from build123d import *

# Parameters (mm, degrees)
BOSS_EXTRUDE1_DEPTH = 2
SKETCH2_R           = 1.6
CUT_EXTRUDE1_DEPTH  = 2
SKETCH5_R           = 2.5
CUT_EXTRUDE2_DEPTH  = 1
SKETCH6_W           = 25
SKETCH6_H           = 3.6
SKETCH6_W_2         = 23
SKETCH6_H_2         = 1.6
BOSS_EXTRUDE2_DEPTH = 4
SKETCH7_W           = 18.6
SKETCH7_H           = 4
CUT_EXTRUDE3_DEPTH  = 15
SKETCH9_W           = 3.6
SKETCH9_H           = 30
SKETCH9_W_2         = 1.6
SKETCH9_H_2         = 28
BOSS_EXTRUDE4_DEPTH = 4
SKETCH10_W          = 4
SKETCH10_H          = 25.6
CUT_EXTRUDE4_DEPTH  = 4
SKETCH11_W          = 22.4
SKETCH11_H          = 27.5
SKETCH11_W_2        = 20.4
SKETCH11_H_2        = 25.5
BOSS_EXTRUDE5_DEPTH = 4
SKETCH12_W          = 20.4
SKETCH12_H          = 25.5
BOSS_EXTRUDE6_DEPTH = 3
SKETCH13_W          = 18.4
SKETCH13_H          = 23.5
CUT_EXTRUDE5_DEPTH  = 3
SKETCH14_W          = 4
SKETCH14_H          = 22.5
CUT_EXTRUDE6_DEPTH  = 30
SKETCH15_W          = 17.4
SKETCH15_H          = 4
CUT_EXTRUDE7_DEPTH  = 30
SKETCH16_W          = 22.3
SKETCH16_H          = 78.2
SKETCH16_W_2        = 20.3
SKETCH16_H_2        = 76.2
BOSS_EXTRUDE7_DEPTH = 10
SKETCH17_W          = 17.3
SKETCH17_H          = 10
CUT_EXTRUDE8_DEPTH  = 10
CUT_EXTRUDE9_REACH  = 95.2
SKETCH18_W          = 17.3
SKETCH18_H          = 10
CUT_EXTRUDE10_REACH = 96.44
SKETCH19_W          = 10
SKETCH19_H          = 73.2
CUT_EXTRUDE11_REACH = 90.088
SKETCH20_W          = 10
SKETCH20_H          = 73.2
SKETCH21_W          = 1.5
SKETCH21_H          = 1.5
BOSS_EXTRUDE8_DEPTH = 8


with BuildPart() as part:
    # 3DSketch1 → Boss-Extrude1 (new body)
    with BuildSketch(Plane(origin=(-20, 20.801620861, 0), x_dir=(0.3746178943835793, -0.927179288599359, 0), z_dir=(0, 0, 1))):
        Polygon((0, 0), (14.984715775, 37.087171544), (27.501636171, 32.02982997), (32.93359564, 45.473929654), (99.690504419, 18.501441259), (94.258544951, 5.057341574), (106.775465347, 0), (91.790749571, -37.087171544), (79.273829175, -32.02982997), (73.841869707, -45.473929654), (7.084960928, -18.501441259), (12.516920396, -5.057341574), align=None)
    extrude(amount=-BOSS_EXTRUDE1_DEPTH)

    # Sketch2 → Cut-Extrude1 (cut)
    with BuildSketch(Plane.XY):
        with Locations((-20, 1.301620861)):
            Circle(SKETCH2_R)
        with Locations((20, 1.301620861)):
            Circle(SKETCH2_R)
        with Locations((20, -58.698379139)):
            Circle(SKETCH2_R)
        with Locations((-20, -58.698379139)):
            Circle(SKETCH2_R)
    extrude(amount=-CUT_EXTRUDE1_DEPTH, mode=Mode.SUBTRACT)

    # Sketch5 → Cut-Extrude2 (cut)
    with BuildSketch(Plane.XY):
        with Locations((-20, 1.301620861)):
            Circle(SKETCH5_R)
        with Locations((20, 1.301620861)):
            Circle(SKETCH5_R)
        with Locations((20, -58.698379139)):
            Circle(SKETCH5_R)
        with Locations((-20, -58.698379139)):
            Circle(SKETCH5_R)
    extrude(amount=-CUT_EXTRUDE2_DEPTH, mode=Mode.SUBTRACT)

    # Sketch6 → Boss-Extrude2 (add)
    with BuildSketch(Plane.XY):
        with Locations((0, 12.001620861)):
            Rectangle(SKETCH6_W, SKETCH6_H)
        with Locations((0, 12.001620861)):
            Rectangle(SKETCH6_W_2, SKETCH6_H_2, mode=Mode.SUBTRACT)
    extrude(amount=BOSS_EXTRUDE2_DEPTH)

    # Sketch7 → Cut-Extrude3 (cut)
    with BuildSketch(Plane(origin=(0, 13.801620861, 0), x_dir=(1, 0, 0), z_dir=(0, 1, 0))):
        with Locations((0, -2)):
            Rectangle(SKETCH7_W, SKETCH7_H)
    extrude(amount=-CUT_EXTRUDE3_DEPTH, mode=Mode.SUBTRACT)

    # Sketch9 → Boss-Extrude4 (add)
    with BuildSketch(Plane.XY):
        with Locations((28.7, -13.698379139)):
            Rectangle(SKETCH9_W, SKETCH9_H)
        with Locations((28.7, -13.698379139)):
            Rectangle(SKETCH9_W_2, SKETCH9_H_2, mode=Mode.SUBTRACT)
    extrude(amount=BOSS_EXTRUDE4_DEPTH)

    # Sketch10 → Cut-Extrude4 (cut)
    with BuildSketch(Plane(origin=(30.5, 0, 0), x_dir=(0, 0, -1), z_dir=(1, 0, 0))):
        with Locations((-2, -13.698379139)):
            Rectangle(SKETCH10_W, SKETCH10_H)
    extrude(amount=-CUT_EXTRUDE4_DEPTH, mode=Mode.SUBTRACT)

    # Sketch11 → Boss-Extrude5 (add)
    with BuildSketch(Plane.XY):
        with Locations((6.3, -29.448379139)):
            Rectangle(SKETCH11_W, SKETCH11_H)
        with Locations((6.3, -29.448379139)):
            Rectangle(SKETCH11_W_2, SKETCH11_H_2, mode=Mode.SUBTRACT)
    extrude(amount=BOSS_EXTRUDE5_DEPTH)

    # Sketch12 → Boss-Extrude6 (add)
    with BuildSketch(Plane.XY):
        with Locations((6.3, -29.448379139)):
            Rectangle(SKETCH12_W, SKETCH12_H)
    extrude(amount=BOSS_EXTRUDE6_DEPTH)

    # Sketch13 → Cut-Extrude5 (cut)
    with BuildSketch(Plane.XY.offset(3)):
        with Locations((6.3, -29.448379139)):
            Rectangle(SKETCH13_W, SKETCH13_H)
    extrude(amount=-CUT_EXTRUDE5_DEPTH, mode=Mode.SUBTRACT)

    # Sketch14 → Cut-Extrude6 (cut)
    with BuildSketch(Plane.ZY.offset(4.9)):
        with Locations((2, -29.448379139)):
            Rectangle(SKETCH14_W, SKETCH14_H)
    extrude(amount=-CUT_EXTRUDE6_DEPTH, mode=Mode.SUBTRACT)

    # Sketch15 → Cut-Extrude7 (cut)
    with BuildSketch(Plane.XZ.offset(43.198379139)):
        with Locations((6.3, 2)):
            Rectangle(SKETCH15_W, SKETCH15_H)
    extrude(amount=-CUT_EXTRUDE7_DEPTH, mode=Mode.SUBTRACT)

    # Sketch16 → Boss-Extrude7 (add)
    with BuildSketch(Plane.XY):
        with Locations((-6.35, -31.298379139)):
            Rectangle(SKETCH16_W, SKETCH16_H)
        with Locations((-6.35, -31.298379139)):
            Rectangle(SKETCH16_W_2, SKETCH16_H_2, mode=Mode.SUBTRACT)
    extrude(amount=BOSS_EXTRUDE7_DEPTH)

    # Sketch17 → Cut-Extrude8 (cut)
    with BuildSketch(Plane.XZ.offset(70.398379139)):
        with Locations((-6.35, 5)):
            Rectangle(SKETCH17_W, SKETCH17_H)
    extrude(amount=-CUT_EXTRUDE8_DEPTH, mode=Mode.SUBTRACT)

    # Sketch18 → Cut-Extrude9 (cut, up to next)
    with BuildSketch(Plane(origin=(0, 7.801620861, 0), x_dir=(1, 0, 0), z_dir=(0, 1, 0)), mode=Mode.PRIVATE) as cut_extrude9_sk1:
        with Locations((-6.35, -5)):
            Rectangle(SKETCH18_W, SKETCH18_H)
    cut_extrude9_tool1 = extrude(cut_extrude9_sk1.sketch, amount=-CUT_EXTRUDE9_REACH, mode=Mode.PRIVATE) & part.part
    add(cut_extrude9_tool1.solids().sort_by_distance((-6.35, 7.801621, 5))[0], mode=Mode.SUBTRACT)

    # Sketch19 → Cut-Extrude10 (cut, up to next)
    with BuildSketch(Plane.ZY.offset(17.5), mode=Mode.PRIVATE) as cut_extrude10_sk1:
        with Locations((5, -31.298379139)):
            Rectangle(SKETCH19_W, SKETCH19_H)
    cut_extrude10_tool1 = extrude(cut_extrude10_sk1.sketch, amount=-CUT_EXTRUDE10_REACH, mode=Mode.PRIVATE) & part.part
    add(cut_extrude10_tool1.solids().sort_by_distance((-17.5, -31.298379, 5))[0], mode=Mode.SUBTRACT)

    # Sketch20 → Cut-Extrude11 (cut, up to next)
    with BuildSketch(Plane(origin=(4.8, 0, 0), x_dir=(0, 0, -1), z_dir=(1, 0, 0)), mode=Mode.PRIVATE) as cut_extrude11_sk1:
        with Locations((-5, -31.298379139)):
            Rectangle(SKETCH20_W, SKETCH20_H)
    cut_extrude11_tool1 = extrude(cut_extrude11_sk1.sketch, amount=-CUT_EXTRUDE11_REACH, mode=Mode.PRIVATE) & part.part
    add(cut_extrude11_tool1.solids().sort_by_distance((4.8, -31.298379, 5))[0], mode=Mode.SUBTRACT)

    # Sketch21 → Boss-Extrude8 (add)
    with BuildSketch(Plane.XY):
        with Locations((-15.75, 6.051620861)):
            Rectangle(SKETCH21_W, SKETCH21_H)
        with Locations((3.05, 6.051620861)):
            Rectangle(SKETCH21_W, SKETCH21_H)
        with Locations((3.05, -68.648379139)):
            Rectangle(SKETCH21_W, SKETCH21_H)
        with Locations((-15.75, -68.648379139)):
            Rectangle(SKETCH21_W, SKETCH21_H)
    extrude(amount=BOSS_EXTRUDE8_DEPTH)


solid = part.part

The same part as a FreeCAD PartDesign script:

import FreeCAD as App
import Part
import Sketcher
Q = App.Units.Quantity

doc = App.newDocument("Part")
body = doc.addObject("PartDesign::Body", "Body")

# Sketch on XY plane
sketch1 = body.newObject("Sketcher::SketchObject", "Sketch")
sketch1.AttachmentSupport = (doc.getObject("XY_Plane"), [""])
sketch1.MapMode = "FlatFace"
sketch1.addGeometry([
    Part.LineSegment(App.Vector(20, 21, 0), App.Vector(-20, 21, 0)),  # 0
    Part.LineSegment(App.Vector(-20, 21, 0), App.Vector(-20, 7, 0)),  # 1
    Part.LineSegment(App.Vector(-20, 7, 0), App.Vector(-35, 7, 0)),  # 2
    Part.LineSegment(App.Vector(-35, 7, 0), App.Vector(-35, -65, 0)),  # 3
    Part.LineSegment(App.Vector(-35, -65, 0), App.Vector(-20, -65, 0)),  # 4
    Part.LineSegment(App.Vector(-20, -65, 0), App.Vector(-20, -78, 0)),  # 5
    Part.LineSegment(App.Vector(-20, -78, 0), App.Vector(20, -78, 0)),  # 6
    Part.LineSegment(App.Vector(20, -78, 0), App.Vector(20, -65, 0)),  # 7
    Part.LineSegment(App.Vector(20, -65, 0), App.Vector(34, -65, 0)),  # 8
    Part.LineSegment(App.Vector(34, -65, 0), App.Vector(35, 7, 0)),  # 9
    Part.LineSegment(App.Vector(35, 7, 0), App.Vector(20, 7, 0)),  # 10
    Part.LineSegment(App.Vector(20, 7, 0), App.Vector(20, 21, 0)),  # 11
], False)
sketch1.addConstraint([
    Sketcher.Constraint("Coincident", 0, 2, 1, 1),
    Sketcher.Constraint("Coincident", 1, 2, 2, 1),
    Sketcher.Constraint("Coincident", 2, 2, 3, 1),
    Sketcher.Constraint("Coincident", 3, 2, 4, 1),
    Sketcher.Constraint("Coincident", 4, 2, 5, 1),
    Sketcher.Constraint("Coincident", 5, 2, 6, 1),
    Sketcher.Constraint("Coincident", 6, 2, 7, 1),
    Sketcher.Constraint("Coincident", 7, 2, 8, 1),
    Sketcher.Constraint("Coincident", 8, 2, 9, 1),
    Sketcher.Constraint("Coincident", 9, 2, 10, 1),
    Sketcher.Constraint("Coincident", 10, 2, 11, 1),
    Sketcher.Constraint("Coincident", 11, 2, 0, 1),
    Sketcher.Constraint("Horizontal", 0),
    Sketcher.Constraint("Vertical", 1),
    Sketcher.Constraint("Horizontal", 2),
    Sketcher.Constraint("Vertical", 3),
    Sketcher.Constraint("Horizontal", 4),
    Sketcher.Constraint("Vertical", 5),
    Sketcher.Constraint("Horizontal", 6),
    Sketcher.Constraint("Vertical", 7),
    Sketcher.Constraint("Horizontal", 8),
    Sketcher.Constraint("Vertical", 9),
    Sketcher.Constraint("Horizontal", 10),
    Sketcher.Constraint("Vertical", 11),
    Sketcher.Constraint("Symmetric", 4, 2, 7, 2, -2),
    Sketcher.Constraint("Symmetric", 2, 2, 9, 2, -2),
    Sketcher.Constraint("Vertical", 1, 2, 4, 2),
    Sketcher.Constraint("Vertical", 7, 2, 10, 2),
    Sketcher.Constraint("Equal", 1, 5),
    Sketcher.Constraint("DistanceX", 0, 2, 0, 1, Q("40 mm")),
    Sketcher.Constraint("DistanceY", 3, 2, 3, 1, Q("72 mm")),
    Sketcher.Constraint("DistanceX", 2, 2, 2, 1, Q("14.5 mm")),
    Sketcher.Constraint("DistanceY", 1, 2, 1, 1, Q("13.5 mm")),
    Sketcher.Constraint("DistanceY", -1, 1, 0, 2, Q("20.801621 mm")),
])
pad1 = body.newObject("PartDesign::Pad", "Pad")
pad1.Profile = sketch1
pad1.Length = 2
pad1.Reversed = True

# Sketch on XY plane
sketch2 = body.newObject("Sketcher::SketchObject", "Sketch001")
sketch2.AttachmentSupport = (doc.getObject("XY_Plane"), [""])
sketch2.MapMode = "FlatFace"
sketch2.addGeometry([
    Part.Circle(App.Vector(-20, 1.3, 0), App.Vector(0, 0, 1), 1.6),
    Part.Circle(App.Vector(20, 1.3, 0), App.Vector(0, 0, 1), 1.6),
    Part.Circle(App.Vector(20, -58.7, 0), App.Vector(0, 0, 1), 1.6),
    Part.Circle(App.Vector(-20, -58.7, 0), App.Vector(0, 0, 1), 1.6),
], False)
sketch2.addConstraint([
    Sketcher.Constraint("Equal", 0, 1),
    Sketcher.Constraint("Equal", 1, 2),
    Sketcher.Constraint("Equal", 2, 3),
    Sketcher.Constraint("Symmetric", 0, 3, 1, 3, -2),
    Sketcher.Constraint("Symmetric", 2, 3, 3, 3, -2),
    Sketcher.Constraint("Vertical", 1, 3, 2, 3),
    Sketcher.Constraint("Diameter", 0, Q("3.2 mm")),
    Sketcher.Constraint("DistanceX", 0, 3, -1, 1, Q("20 mm")),
    Sketcher.Constraint("DistanceY", 2, 3, 1, 3, Q("60 mm")),
    Sketcher.Constraint("DistanceY", -1, 1, 0, 3, Q("1.301621 mm")),
])
pocket1 = body.newObject("PartDesign::Pocket", "Pocket")
pocket1.Profile = sketch2
pocket1.Length = 2

# Sketch on XY plane
sketch3 = body.newObject("Sketcher::SketchObject", "Sketch002")
sketch3.AttachmentSupport = (doc.getObject("XY_Plane"), [""])
sketch3.MapMode = "FlatFace"
sketch3.addGeometry([
    Part.Circle(App.Vector(-20, 1.3, 0), App.Vector(0, 0, 1), 2.5),
    Part.Circle(App.Vector(20, 1.3, 0), App.Vector(0, 0, 1), 2.5),
    Part.Circle(App.Vector(20, -58.7, 0), App.Vector(0, 0, 1), 2.5),
    Part.Circle(App.Vector(-20, -58.7, 0), App.Vector(0, 0, 1), 2.5),
], False)
sketch3.addConstraint([
    Sketcher.Constraint("Equal", 0, 1),
    Sketcher.Constraint("Equal", 1, 2),
    Sketcher.Constraint("Equal", 2, 3),
    Sketcher.Constraint("Symmetric", 0, 3, 1, 3, -2),
    Sketcher.Constraint("Symmetric", 2, 3, 3, 3, -2),
    Sketcher.Constraint("Vertical", 1, 3, 2, 3),
    Sketcher.Constraint("Diameter", 0, Q("5 mm")),
    Sketcher.Constraint("DistanceX", 0, 3, -1, 1, Q("20 mm")),
    Sketcher.Constraint("DistanceY", 2, 3, 1, 3, Q("60 mm")),
    Sketcher.Constraint("DistanceY", -1, 1, 0, 3, Q("1.301621 mm")),
])
pocket2 = body.newObject("PartDesign::Pocket", "Pocket001")
pocket2.Profile = sketch3
pocket2.Length = 1

# Sketch on XY plane
sketch4 = body.newObject("Sketcher::SketchObject", "Sketch003")
sketch4.AttachmentSupport = (doc.getObject("XY_Plane"), [""])
sketch4.MapMode = "FlatFace"
sketch4.addGeometry([
    Part.LineSegment(App.Vector(-12.5, 13.8, 0), App.Vector(-12.5, 10.2, 0)),  # 0
    Part.LineSegment(App.Vector(-12.5, 10.2, 0), App.Vector(12.5, 10.2, 0)),  # 1
    Part.LineSegment(App.Vector(12.5, 10.2, 0), App.Vector(12.5, 13.8, 0)),  # 2
    Part.LineSegment(App.Vector(12.5, 13.8, 0), App.Vector(-12.5, 13.8, 0)),  # 3
    Part.LineSegment(App.Vector(11.5, 11.2, 0), App.Vector(-11.5, 11.2, 0)),  # 4
    Part.LineSegment(App.Vector(-11.5, 11.2, 0), App.Vector(-11.5, 12.8, 0)),  # 5
    Part.LineSegment(App.Vector(-11.5, 12.8, 0), App.Vector(11.5, 12.8, 0)),  # 6
    Part.LineSegment(App.Vector(11.5, 12.8, 0), App.Vector(11.5, 11.2, 0)),  # 7
], False)
sketch4.addConstraint([
    Sketcher.Constraint("Coincident", 0, 2, 1, 1),
    Sketcher.Constraint("Coincident", 1, 2, 2, 1),
    Sketcher.Constraint("Coincident", 2, 2, 3, 1),
    Sketcher.Constraint("Coincident", 3, 2, 0, 1),
    Sketcher.Constraint("Coincident", 4, 2, 5, 1),
    Sketcher.Constraint("Coincident", 5, 2, 6, 1),
    Sketcher.Constraint("Coincident", 6, 2, 7, 1),
    Sketcher.Constraint("Coincident", 7, 2, 4, 1),
    Sketcher.Constraint("Vertical", 0),
    Sketcher.Constraint("Horizontal", 1),
    Sketcher.Constraint("Vertical", 2),
    Sketcher.Constraint("Horizontal", 3),
    Sketcher.Constraint("Horizontal", 4),
    Sketcher.Constraint("Vertical", 5),
    Sketcher.Constraint("Horizontal", 6),
    Sketcher.Constraint("Vertical", 7),
    Sketcher.Constraint("DistanceX", 1, 1, 1, 2, Q("25 mm")),
    Sketcher.Constraint("DistanceX", 4, 2, 4, 1, Q("23 mm")),
    Sketcher.Constraint("DistanceY", 0, 2, 0, 1, Q("3.6 mm")),
    Sketcher.Constraint("DistanceY", 5, 1, 5, 2, Q("1.6 mm")),
    Sketcher.Constraint("DistanceX", 0, 2, 4, 2, Q("1 mm")),
    Sketcher.Constraint("DistanceY", 0, 2, 4, 2, Q("1 mm")),
    Sketcher.Constraint("DistanceX", 0, 2, -1, 1, Q("12.5 mm")),
    Sketcher.Constraint("DistanceY", -1, 1, 0, 2, Q("10.201621 mm")),
])
pad2 = body.newObject("PartDesign::Pad", "Pad001")
pad2.Profile = sketch4
pad2.Length = 4

# Sketch on XZ plane
sketch5 = body.newObject("Sketcher::SketchObject", "Sketch004")
sketch5.AttachmentSupport = (doc.getObject("XZ_Plane"), [""])
sketch5.MapMode = "FlatFace"
sketch5.AttachmentOffset = App.Placement(App.Vector(0, 0, -13.801621), App.Rotation())
sketch5.addGeometry([
    Part.LineSegment(App.Vector(-9.3, 0, 0), App.Vector(-9.3, 4, 0)),
    Part.LineSegment(App.Vector(-9.3, 4, 0), App.Vector(9.3, 4, 0)),
    Part.LineSegment(App.Vector(9.3, 4, 0), App.Vector(9.3, 0, 0)),
    Part.LineSegment(App.Vector(9.3, 0, 0), App.Vector(-9.3, 0, 0)),
], False)
sketch5.addConstraint([
    Sketcher.Constraint("Coincident", 0, 2, 1, 1),
    Sketcher.Constraint("Coincident", 1, 2, 2, 1),
    Sketcher.Constraint("Coincident", 2, 2, 3, 1),
    Sketcher.Constraint("Coincident", 3, 2, 0, 1),
    Sketcher.Constraint("Vertical", 0),
    Sketcher.Constraint("Horizontal", 1),
    Sketcher.Constraint("Vertical", 2),
    Sketcher.Constraint("Horizontal", 3),
    Sketcher.Constraint("Symmetric", 2, 2, 3, 2, -1, 1),
    Sketcher.Constraint("DistanceY", 0, 1, 0, 2, Q("4 mm")),
    Sketcher.Constraint("DistanceX", 1, 1, 1, 2, Q("18.6 mm")),
])
pocket3 = body.newObject("PartDesign::Pocket", "Pocket002")
pocket3.Profile = sketch5
pocket3.Length = 15
pocket3.Reversed = True

# Sketch on XY plane
sketch6 = body.newObject("Sketcher::SketchObject", "Sketch005")
sketch6.AttachmentSupport = (doc.getObject("XY_Plane"), [""])
sketch6.MapMode = "FlatFace"
sketch6.addGeometry([
    Part.LineSegment(App.Vector(26.9, 1.3, 0), App.Vector(26.9, -28.7, 0)),  # 0
    Part.LineSegment(App.Vector(26.9, -28.7, 0), App.Vector(30.5, -28.7, 0)),  # 1
    Part.LineSegment(App.Vector(30.5, -28.7, 0), App.Vector(30.5, 1.3, 0)),  # 2
    Part.LineSegment(App.Vector(30.5, 1.3, 0), App.Vector(26.9, 1.3, 0)),  # 3
    Part.LineSegment(App.Vector(29.5, -27.7, 0), App.Vector(27.9, -27.7, 0)),  # 4
    Part.LineSegment(App.Vector(27.9, -27.7, 0), App.Vector(27.9, 0.3, 0)),  # 5
    Part.LineSegment(App.Vector(27.9, 0.3, 0), App.Vector(29.5, 0.3, 0)),  # 6
    Part.LineSegment(App.Vector(29.5, 0.3, 0), App.Vector(29.5, -27.7, 0)),  # 7
], False)
sketch6.addConstraint([
    Sketcher.Constraint("Coincident", 0, 2, 1, 1),
    Sketcher.Constraint("Coincident", 1, 2, 2, 1),
    Sketcher.Constraint("Coincident", 2, 2, 3, 1),
    Sketcher.Constraint("Coincident", 3, 2, 0, 1),
    Sketcher.Constraint("Coincident", 4, 2, 5, 1),
    Sketcher.Constraint("Coincident", 5, 2, 6, 1),
    Sketcher.Constraint("Coincident", 6, 2, 7, 1),
    Sketcher.Constraint("Coincident", 7, 2, 4, 1),
    Sketcher.Constraint("Vertical", 0),
    Sketcher.Constraint("Horizontal", 1),
    Sketcher.Constraint("Vertical", 2),
    Sketcher.Constraint("Horizontal", 3),
    Sketcher.Constraint("Horizontal", 4),
    Sketcher.Constraint("Vertical", 5),
    Sketcher.Constraint("Horizontal", 6),
    Sketcher.Constraint("Vertical", 7),
    Sketcher.Constraint("DistanceY", 0, 2, 0, 1, Q("30 mm")),
    Sketcher.Constraint("DistanceY", 5, 1, 5, 2, Q("28 mm")),
    Sketcher.Constraint("DistanceX", 1, 1, 1, 2, Q("3.6 mm")),
    Sketcher.Constraint("DistanceX", 4, 2, 4, 1, Q("1.6 mm")),
    Sketcher.Constraint("DistanceX", 0, 2, 4, 2, Q("1 mm")),
    Sketcher.Constraint("DistanceY", 0, 2, 4, 2, Q("1 mm")),
    Sketcher.Constraint("DistanceX", -1, 1, 0, 2, Q("26.9 mm")),
    Sketcher.Constraint("DistanceY", 0, 2, -1, 1, Q("28.698379 mm")),
])
pad3 = body.newObject("PartDesign::Pad", "Pad002")
pad3.Profile = sketch6
pad3.Length = 4

# Sketch on YZ plane
sketch7 = body.newObject("Sketcher::SketchObject", "Sketch006")
sketch7.AttachmentSupport = (doc.getObject("YZ_Plane"), [""])
sketch7.MapMode = "FlatFace"
sketch7.AttachmentOffset = App.Placement(App.Vector(0, 0, 30.5), App.Rotation())
sketch7.addGeometry([
    Part.LineSegment(App.Vector(-0.9, 4, 0), App.Vector(-26.5, 4, 0)),
    Part.LineSegment(App.Vector(-26.5, 4, 0), App.Vector(-26.5, 0, 0)),
    Part.LineSegment(App.Vector(-26.5, 0, 0), App.Vector(-0.9, 0, 0)),
    Part.LineSegment(App.Vector(-0.9, 0, 0), App.Vector(-0.9, 4, 0)),
], False)
sketch7.addConstraint([
    Sketcher.Constraint("Coincident", 0, 2, 1, 1),
    Sketcher.Constraint("Coincident", 1, 2, 2, 1),
    Sketcher.Constraint("Coincident", 2, 2, 3, 1),
    Sketcher.Constraint("Coincident", 3, 2, 0, 1),
    Sketcher.Constraint("Horizontal", 0),
    Sketcher.Constraint("Vertical", 1),
    Sketcher.Constraint("Horizontal", 2),
    Sketcher.Constraint("Vertical", 3),
    Sketcher.Constraint("PointOnObject", 1, 2, -1),
    Sketcher.Constraint("DistanceY", 1, 2, 1, 1, Q("4 mm")),
    Sketcher.Constraint("DistanceX", 0, 2, 0, 1, Q("25.6 mm")),
    Sketcher.Constraint("DistanceX", 0, 2, -1, 1, Q("26.498379 mm")),
])
pocket4 = body.newObject("PartDesign::Pocket", "Pocket003")
pocket4.Profile = sketch7
pocket4.Length = 4

# Sketch on XY plane
sketch8 = body.newObject("Sketcher::SketchObject", "Sketch007")
sketch8.AttachmentSupport = (doc.getObject("XY_Plane"), [""])
sketch8.MapMode = "FlatFace"
sketch8.addGeometry([
    Part.LineSegment(App.Vector(-5, -16, 0), App.Vector(-5, -43, 0)),  # 0
    Part.LineSegment(App.Vector(-5, -43, 0), App.Vector(18, -43, 0)),  # 1
    Part.LineSegment(App.Vector(18, -43, 0), App.Vector(18, -16, 0)),  # 2
    Part.LineSegment(App.Vector(18, -16, 0), App.Vector(-5, -16, 0)),  # 3
    Part.LineSegment(App.Vector(16, -42, 0), App.Vector(-4, -42, 0)),  # 4
    Part.LineSegment(App.Vector(-4, -42, 0), App.Vector(-4, -17, 0)),  # 5
    Part.LineSegment(App.Vector(-4, -17, 0), App.Vector(16, -17, 0)),  # 6
    Part.LineSegment(App.Vector(16, -17, 0), App.Vector(16, -42, 0)),  # 7
], False)
sketch8.addConstraint([
    Sketcher.Constraint("Coincident", 0, 2, 1, 1),
    Sketcher.Constraint("Coincident", 1, 2, 2, 1),
    Sketcher.Constraint("Coincident", 2, 2, 3, 1),
    Sketcher.Constraint("Coincident", 3, 2, 0, 1),
    Sketcher.Constraint("Coincident", 4, 2, 5, 1),
    Sketcher.Constraint("Coincident", 5, 2, 6, 1),
    Sketcher.Constraint("Coincident", 6, 2, 7, 1),
    Sketcher.Constraint("Coincident", 7, 2, 4, 1),
    Sketcher.Constraint("Vertical", 0),
    Sketcher.Constraint("Horizontal", 1),
    Sketcher.Constraint("Vertical", 2),
    Sketcher.Constraint("Horizontal", 3),
    Sketcher.Constraint("Horizontal", 4),
    Sketcher.Constraint("Vertical", 5),
    Sketcher.Constraint("Horizontal", 6),
    Sketcher.Constraint("Vertical", 7),
    Sketcher.Constraint("DistanceX", 1, 1, 1, 2, Q("22.4 mm")),
    Sketcher.Constraint("DistanceX", 4, 2, 4, 1, Q("20.4 mm")),
    Sketcher.Constraint("DistanceY", 0, 2, 0, 1, Q("27.5 mm")),
    Sketcher.Constraint("DistanceY", 5, 1, 5, 2, Q("25.5 mm")),
    Sketcher.Constraint("DistanceX", 0, 2, 4, 2, Q("1 mm")),
    Sketcher.Constraint("DistanceY", 0, 2, 4, 2, Q("1 mm")),
    Sketcher.Constraint("DistanceX", 0, 2, -1, 1, Q("4.9 mm")),
    Sketcher.Constraint("DistanceY", 0, 2, -1, 1, Q("43.198379 mm")),
])
pad4 = body.newObject("PartDesign::Pad", "Pad003")
pad4.Profile = sketch8
pad4.Length = 4

# Sketch on XY plane
sketch9 = body.newObject("Sketcher::SketchObject", "Sketch008")
sketch9.AttachmentSupport = (doc.getObject("XY_Plane"), [""])
sketch9.MapMode = "FlatFace"
sketch9.addGeometry([
    Part.LineSegment(App.Vector(-4, -17, 0), App.Vector(-4, -42, 0)),
    Part.LineSegment(App.Vector(-4, -42, 0), App.Vector(16, -42, 0)),
    Part.LineSegment(App.Vector(16, -42, 0), App.Vector(16, -17, 0)),
    Part.LineSegment(App.Vector(16, -17, 0), App.Vector(-4, -17, 0)),
], False)
sketch9.addConstraint([
    Sketcher.Constraint("Coincident", 0, 2, 1, 1),
    Sketcher.Constraint("Coincident", 1, 2, 2, 1),
    Sketcher.Constraint("Coincident", 2, 2, 3, 1),
    Sketcher.Constraint("Coincident", 3, 2, 0, 1),
    Sketcher.Constraint("Vertical", 0),
    Sketcher.Constraint("Horizontal", 1),
    Sketcher.Constraint("Vertical", 2),
    Sketcher.Constraint("Horizontal", 3),
    Sketcher.Constraint("DistanceX", 1, 1, 1, 2, Q("20.4 mm")),
    Sketcher.Constraint("DistanceY", 0, 2, 0, 1, Q("25.5 mm")),
    Sketcher.Constraint("DistanceX", 0, 2, -1, 1, Q("3.9 mm")),
    Sketcher.Constraint("DistanceY", 0, 2, -1, 1, Q("42.198379 mm")),
])
pad5 = body.newObject("PartDesign::Pad", "Pad004")
pad5.Profile = sketch9
pad5.Length = 3

# Sketch on XY plane
sketch10 = body.newObject("Sketcher::SketchObject", "Sketch009")
sketch10.AttachmentSupport = (doc.getObject("XY_Plane"), [""])
sketch10.MapMode = "FlatFace"
sketch10.AttachmentOffset = App.Placement(App.Vector(0, 0, 3), App.Rotation())
sketch10.addGeometry([
    Part.LineSegment(App.Vector(-3, -18, 0), App.Vector(-3, -41, 0)),
    Part.LineSegment(App.Vector(-3, -41, 0), App.Vector(16, -41, 0)),
    Part.LineSegment(App.Vector(16, -41, 0), App.Vector(16, -18, 0)),
    Part.LineSegment(App.Vector(16, -18, 0), App.Vector(-3, -18, 0)),
], False)
sketch10.addConstraint([
    Sketcher.Constraint("Coincident", 0, 2, 1, 1),
    Sketcher.Constraint("Coincident", 1, 2, 2, 1),
    Sketcher.Constraint("Coincident", 2, 2, 3, 1),
    Sketcher.Constraint("Coincident", 3, 2, 0, 1),
    Sketcher.Constraint("Vertical", 0),
    Sketcher.Constraint("Horizontal", 1),
    Sketcher.Constraint("Vertical", 2),
    Sketcher.Constraint("Horizontal", 3),
    Sketcher.Constraint("DistanceX", 1, 1, 1, 2, Q("18.4 mm")),
    Sketcher.Constraint("DistanceY", 0, 2, 0, 1, Q("23.5 mm")),
    Sketcher.Constraint("DistanceX", 0, 2, -1, 1, Q("2.9 mm")),
    Sketcher.Constraint("DistanceY", 0, 2, -1, 1, Q("41.198379 mm")),
])
pocket5 = body.newObject("PartDesign::Pocket", "Pocket004")
pocket5.Profile = sketch10
pocket5.Length = 3

# Sketch on YZ plane
sketch11 = body.newObject("Sketcher::SketchObject", "Sketch010")
sketch11.AttachmentSupport = (doc.getObject("YZ_Plane"), [""])
sketch11.MapMode = "FlatFace"
sketch11.AttachmentOffset = App.Placement(App.Vector(0, 0, -4.9), App.Rotation())
sketch11.addGeometry([
    Part.LineSegment(App.Vector(-18.2, 0, 0), App.Vector(-40.7, 0, 0)),
    Part.LineSegment(App.Vector(-40.7, 0, 0), App.Vector(-40.7, 4, 0)),
    Part.LineSegment(App.Vector(-40.7, 4, 0), App.Vector(-18.2, 4, 0)),
    Part.LineSegment(App.Vector(-18.2, 4, 0), App.Vector(-18.2, 0, 0)),
], False)
sketch11.addConstraint([
    Sketcher.Constraint("Coincident", 0, 2, 1, 1),
    Sketcher.Constraint("Coincident", 1, 2, 2, 1),
    Sketcher.Constraint("Coincident", 2, 2, 3, 1),
    Sketcher.Constraint("Coincident", 3, 2, 0, 1),
    Sketcher.Constraint("Horizontal", 0),
    Sketcher.Constraint("Vertical", 1),
    Sketcher.Constraint("Horizontal", 2),
    Sketcher.Constraint("Vertical", 3),
    Sketcher.Constraint("PointOnObject", 0, 2, -1),
    Sketcher.Constraint("DistanceY", 1, 1, 1, 2, Q("4 mm")),
    Sketcher.Constraint("DistanceX", 0, 2, 0, 1, Q("22.5 mm")),
    Sketcher.Constraint("DistanceX", 0, 2, -1, 1, Q("40.698379 mm")),
])
pocket6 = body.newObject("PartDesign::Pocket", "Pocket005")
pocket6.Profile = sketch11
pocket6.Length = 30
pocket6.Reversed = True

# Sketch on XZ plane
sketch12 = body.newObject("Sketcher::SketchObject", "Sketch011")
sketch12.AttachmentSupport = (doc.getObject("XZ_Plane"), [""])
sketch12.MapMode = "FlatFace"
sketch12.AttachmentOffset = App.Placement(App.Vector(0, 0, 43.198379), App.Rotation())
sketch12.addGeometry([
    Part.LineSegment(App.Vector(-2.4, 4, 0), App.Vector(-2.4, 0, 0)),
    Part.LineSegment(App.Vector(-2.4, 0, 0), App.Vector(15, 0, 0)),
    Part.LineSegment(App.Vector(15, 0, 0), App.Vector(15, 4, 0)),
    Part.LineSegment(App.Vector(15, 4, 0), App.Vector(-2.4, 4, 0)),
], False)
sketch12.addConstraint([
    Sketcher.Constraint("Coincident", 0, 2, 1, 1),
    Sketcher.Constraint("Coincident", 1, 2, 2, 1),
    Sketcher.Constraint("Coincident", 2, 2, 3, 1),
    Sketcher.Constraint("Coincident", 3, 2, 0, 1),
    Sketcher.Constraint("Vertical", 0),
    Sketcher.Constraint("Horizontal", 1),
    Sketcher.Constraint("Vertical", 2),
    Sketcher.Constraint("Horizontal", 3),
    Sketcher.Constraint("PointOnObject", 0, 2, -1),
    Sketcher.Constraint("DistanceY", 0, 2, 0, 1, Q("4 mm")),
    Sketcher.Constraint("DistanceX", 1, 1, 1, 2, Q("17.4 mm")),
    Sketcher.Constraint("DistanceX", -1, 1, 1, 2, Q("15 mm")),
])
pocket7 = body.newObject("PartDesign::Pocket", "Pocket006")
pocket7.Profile = sketch12
pocket7.Length = 30

# Sketch on XY plane
sketch13 = body.newObject("Sketcher::SketchObject", "Sketch012")
sketch13.AttachmentSupport = (doc.getObject("XY_Plane"), [""])
sketch13.MapMode = "FlatFace"
sketch13.addGeometry([
    Part.LineSegment(App.Vector(-18, 8, 0), App.Vector(-18, -70, 0)),  # 0
    Part.LineSegment(App.Vector(-18, -70, 0), App.Vector(5, -70, 0)),  # 1
    Part.LineSegment(App.Vector(5, -70, 0), App.Vector(5, 8, 0)),  # 2
    Part.LineSegment(App.Vector(5, 8, 0), App.Vector(-18, 8, 0)),  # 3
    Part.LineSegment(App.Vector(4, -69, 0), App.Vector(-16, -69, 0)),  # 4
    Part.LineSegment(App.Vector(-16, -69, 0), App.Vector(-16, 7, 0)),  # 5
    Part.LineSegment(App.Vector(-16, 7, 0), App.Vector(4, 7, 0)),  # 6
    Part.LineSegment(App.Vector(4, 7, 0), App.Vector(4, -69, 0)),  # 7
], False)
sketch13.addConstraint([
    Sketcher.Constraint("Coincident", 0, 2, 1, 1),
    Sketcher.Constraint("Coincident", 1, 2, 2, 1),
    Sketcher.Constraint("Coincident", 2, 2, 3, 1),
    Sketcher.Constraint("Coincident", 3, 2, 0, 1),
    Sketcher.Constraint("Coincident", 4, 2, 5, 1),
    Sketcher.Constraint("Coincident", 5, 2, 6, 1),
    Sketcher.Constraint("Coincident", 6, 2, 7, 1),
    Sketcher.Constraint("Coincident", 7, 2, 4, 1),
    Sketcher.Constraint("Vertical", 0),
    Sketcher.Constraint("Horizontal", 1),
    Sketcher.Constraint("Vertical", 2),
    Sketcher.Constraint("Horizontal", 3),
    Sketcher.Constraint("Horizontal", 4),
    Sketcher.Constraint("Vertical", 5),
    Sketcher.Constraint("Horizontal", 6),
    Sketcher.Constraint("Vertical", 7),
    Sketcher.Constraint("DistanceX", 1, 1, 1, 2, Q("22.3 mm")),
    Sketcher.Constraint("DistanceX", 4, 2, 4, 1, Q("20.3 mm")),
    Sketcher.Constraint("DistanceY", 0, 2, 0, 1, Q("78.2 mm")),
    Sketcher.Constraint("DistanceY", 5, 1, 5, 2, Q("76.2 mm")),
    Sketcher.Constraint("DistanceX", 0, 2, 4, 2, Q("1 mm")),
    Sketcher.Constraint("DistanceY", 0, 2, 4, 2, Q("1 mm")),
    Sketcher.Constraint("DistanceX", 0, 2, -1, 1, Q("17.5 mm")),
    Sketcher.Constraint("DistanceY", 0, 2, -1, 1, Q("70.398379 mm")),
])
pad6 = body.newObject("PartDesign::Pad", "Pad005")
pad6.Profile = sketch13
pad6.Length = 10

# Sketch on XZ plane
sketch14 = body.newObject("Sketcher::SketchObject", "Sketch013")
sketch14.AttachmentSupport = (doc.getObject("XZ_Plane"), [""])
sketch14.MapMode = "FlatFace"
sketch14.AttachmentOffset = App.Placement(App.Vector(0, 0, 70.398379), App.Rotation())
sketch14.addGeometry([
    Part.LineSegment(App.Vector(-15, 10, 0), App.Vector(-15, 0, 0)),
    Part.LineSegment(App.Vector(-15, 0, 0), App.Vector(2, 0, 0)),
    Part.LineSegment(App.Vector(2, 0, 0), App.Vector(2, 10, 0)),
    Part.LineSegment(App.Vector(2, 10, 0), App.Vector(-15, 10, 0)),
], False)
sketch14.addConstraint([
    Sketcher.Constraint("Coincident", 0, 2, 1, 1),
    Sketcher.Constraint("Coincident", 1, 2, 2, 1),
    Sketcher.Constraint("Coincident", 2, 2, 3, 1),
    Sketcher.Constraint("Coincident", 3, 2, 0, 1),
    Sketcher.Constraint("Vertical", 0),
    Sketcher.Constraint("Horizontal", 1),
    Sketcher.Constraint("Vertical", 2),
    Sketcher.Constraint("Horizontal", 3),
    Sketcher.Constraint("PointOnObject", 0, 2, -1),
    Sketcher.Constraint("DistanceY", 0, 2, 0, 1, Q("10 mm")),
    Sketcher.Constraint("DistanceX", 1, 1, 1, 2, Q("17.3 mm")),
    Sketcher.Constraint("DistanceX", 0, 2, -1, 1, Q("15 mm")),
])
pocket8 = body.newObject("PartDesign::Pocket", "Pocket007")
pocket8.Profile = sketch14
pocket8.Length = 10

# Sketch on XZ plane
sketch15 = body.newObject("Sketcher::SketchObject", "Sketch014")
sketch15.AttachmentSupport = (doc.getObject("XZ_Plane"), [""])
sketch15.MapMode = "FlatFace"
sketch15.AttachmentOffset = App.Placement(App.Vector(0, 0, -7.801621), App.Rotation())
sketch15.addGeometry([
    Part.LineSegment(App.Vector(-15, 0, 0), App.Vector(-15, 10, 0)),
    Part.LineSegment(App.Vector(-15, 10, 0), App.Vector(2, 10, 0)),
    Part.LineSegment(App.Vector(2, 10, 0), App.Vector(2, 0, 0)),
    Part.LineSegment(App.Vector(2, 0, 0), App.Vector(-15, 0, 0)),
], False)
sketch15.addConstraint([
    Sketcher.Constraint("Coincident", 0, 2, 1, 1),
    Sketcher.Constraint("Coincident", 1, 2, 2, 1),
    Sketcher.Constraint("Coincident", 2, 2, 3, 1),
    Sketcher.Constraint("Coincident", 3, 2, 0, 1),
    Sketcher.Constraint("Vertical", 0),
    Sketcher.Constraint("Horizontal", 1),
    Sketcher.Constraint("Vertical", 2),
    Sketcher.Constraint("Horizontal", 3),
    Sketcher.Constraint("PointOnObject", 2, 2, -1),
    Sketcher.Constraint("DistanceY", 0, 1, 0, 2, Q("10 mm")),
    Sketcher.Constraint("DistanceX", 1, 1, 1, 2, Q("17.3 mm")),
    Sketcher.Constraint("DistanceX", 0, 2, -1, 1, Q("15 mm")),
])
pocket9 = body.newObject("PartDesign::Pocket", "Pocket008")
pocket9.Profile = sketch15
pocket9.Type = "UpToFirst"
pocket9.Reversed = True

# Sketch on YZ plane
sketch16 = body.newObject("Sketcher::SketchObject", "Sketch015")
sketch16.AttachmentSupport = (doc.getObject("YZ_Plane"), [""])
sketch16.MapMode = "FlatFace"
sketch16.AttachmentOffset = App.Placement(App.Vector(0, 0, -17.5), App.Rotation())
sketch16.addGeometry([
    Part.LineSegment(App.Vector(5, 0, 0), App.Vector(-68, 0, 0)),
    Part.LineSegment(App.Vector(-68, 0, 0), App.Vector(-68, 10, 0)),
    Part.LineSegment(App.Vector(-68, 10, 0), App.Vector(5, 10, 0)),
    Part.LineSegment(App.Vector(5, 10, 0), App.Vector(5, 0, 0)),
], False)
sketch16.addConstraint([
    Sketcher.Constraint("Coincident", 0, 2, 1, 1),
    Sketcher.Constraint("Coincident", 1, 2, 2, 1),
    Sketcher.Constraint("Coincident", 2, 2, 3, 1),
    Sketcher.Constraint("Coincident", 3, 2, 0, 1),
    Sketcher.Constraint("Horizontal", 0),
    Sketcher.Constraint("Vertical", 1),
    Sketcher.Constraint("Horizontal", 2),
    Sketcher.Constraint("Vertical", 3),
    Sketcher.Constraint("PointOnObject", 0, 2, -1),
    Sketcher.Constraint("DistanceY", 1, 1, 1, 2, Q("10 mm")),
    Sketcher.Constraint("DistanceX", 0, 2, 0, 1, Q("73.2 mm")),
    Sketcher.Constraint("DistanceX", 0, 2, -1, 1, Q("67.898379 mm")),
])
pocket10 = body.newObject("PartDesign::Pocket", "Pocket009")
pocket10.Profile = sketch16
pocket10.Type = "UpToFirst"
pocket10.Reversed = True

# Sketch on YZ plane
sketch17 = body.newObject("Sketcher::SketchObject", "Sketch016")
sketch17.AttachmentSupport = (doc.getObject("YZ_Plane"), [""])
sketch17.MapMode = "FlatFace"
sketch17.AttachmentOffset = App.Placement(App.Vector(0, 0, 4.8), App.Rotation())
sketch17.addGeometry([
    Part.LineSegment(App.Vector(5, 10, 0), App.Vector(-68, 10, 0)),
    Part.LineSegment(App.Vector(-68, 10, 0), App.Vector(-68, 0, 0)),
    Part.LineSegment(App.Vector(-68, 0, 0), App.Vector(5, 0, 0)),
    Part.LineSegment(App.Vector(5, 0, 0), App.Vector(5, 10, 0)),
], False)
sketch17.addConstraint([
    Sketcher.Constraint("Coincident", 0, 2, 1, 1),
    Sketcher.Constraint("Coincident", 1, 2, 2, 1),
    Sketcher.Constraint("Coincident", 2, 2, 3, 1),
    Sketcher.Constraint("Coincident", 3, 2, 0, 1),
    Sketcher.Constraint("Horizontal", 0),
    Sketcher.Constraint("Vertical", 1),
    Sketcher.Constraint("Horizontal", 2),
    Sketcher.Constraint("Vertical", 3),
    Sketcher.Constraint("PointOnObject", 1, 2, -1),
    Sketcher.Constraint("DistanceY", 1, 2, 1, 1, Q("10 mm")),
    Sketcher.Constraint("DistanceX", 0, 2, 0, 1, Q("73.2 mm")),
    Sketcher.Constraint("DistanceX", 0, 2, -1, 1, Q("67.898379 mm")),
])
pocket11 = body.newObject("PartDesign::Pocket", "Pocket010")
pocket11.Profile = sketch17
pocket11.Type = "UpToFirst"

# Sketch on XY plane
sketch18 = body.newObject("Sketcher::SketchObject", "Sketch017")
sketch18.AttachmentSupport = (doc.getObject("XY_Plane"), [""])
sketch18.MapMode = "FlatFace"
sketch18.addGeometry([
    Part.LineSegment(App.Vector(-16.5, 6.8, 0), App.Vector(-16.5, 5.3, 0)),  # 0
    Part.LineSegment(App.Vector(-16.5, 5.3, 0), App.Vector(-15, 5.3, 0)),  # 1
    Part.LineSegment(App.Vector(-15, 5.3, 0), App.Vector(-15, 6.8, 0)),  # 2
    Part.LineSegment(App.Vector(-15, 6.8, 0), App.Vector(-16.5, 6.8, 0)),  # 3
    Part.LineSegment(App.Vector(2.3, 6.8, 0), App.Vector(2.3, 5.3, 0)),  # 4
    Part.LineSegment(App.Vector(2.3, 5.3, 0), App.Vector(3.8, 5.3, 0)),  # 5
    Part.LineSegment(App.Vector(3.8, 5.3, 0), App.Vector(3.8, 6.8, 0)),  # 6
    Part.LineSegment(App.Vector(3.8, 6.8, 0), App.Vector(2.3, 6.8, 0)),  # 7
    Part.LineSegment(App.Vector(2.3, -67.9, 0), App.Vector(2.3, -69.4, 0)),  # 8
    Part.LineSegment(App.Vector(2.3, -69.4, 0), App.Vector(3.8, -69.4, 0)),  # 9
    Part.LineSegment(App.Vector(3.8, -69.4, 0), App.Vector(3.8, -67.9, 0)),  # 10
    Part.LineSegment(App.Vector(3.8, -67.9, 0), App.Vector(2.3, -67.9, 0)),  # 11
    Part.LineSegment(App.Vector(-16.5, -67.9, 0), App.Vector(-16.5, -69.4, 0)),  # 12
    Part.LineSegment(App.Vector(-16.5, -69.4, 0), App.Vector(-15, -69.4, 0)),  # 13
    Part.LineSegment(App.Vector(-15, -69.4, 0), App.Vector(-15, -67.9, 0)),  # 14
    Part.LineSegment(App.Vector(-15, -67.9, 0), App.Vector(-16.5, -67.9, 0)),  # 15
], False)
sketch18.addConstraint([
    Sketcher.Constraint("Coincident", 0, 2, 1, 1),
    Sketcher.Constraint("Coincident", 1, 2, 2, 1),
    Sketcher.Constraint("Coincident", 2, 2, 3, 1),
    Sketcher.Constraint("Coincident", 3, 2, 0, 1),
    Sketcher.Constraint("Coincident", 4, 2, 5, 1),
    Sketcher.Constraint("Coincident", 5, 2, 6, 1),
    Sketcher.Constraint("Coincident", 6, 2, 7, 1),
    Sketcher.Constraint("Coincident", 7, 2, 4, 1),
    Sketcher.Constraint("Coincident", 8, 2, 9, 1),
    Sketcher.Constraint("Coincident", 9, 2, 10, 1),
    Sketcher.Constraint("Coincident", 10, 2, 11, 1),
    Sketcher.Constraint("Coincident", 11, 2, 8, 1),
    Sketcher.Constraint("Coincident", 12, 2, 13, 1),
    Sketcher.Constraint("Coincident", 13, 2, 14, 1),
    Sketcher.Constraint("Coincident", 14, 2, 15, 1),
    Sketcher.Constraint("Coincident", 15, 2, 12, 1),
    Sketcher.Constraint("Vertical", 0),
    Sketcher.Constraint("Horizontal", 1),
    Sketcher.Constraint("Vertical", 2),
    Sketcher.Constraint("Horizontal", 3),
    Sketcher.Constraint("Vertical", 4),
    Sketcher.Constraint("Horizontal", 5),
    Sketcher.Constraint("Vertical", 6),
    Sketcher.Constraint("Horizontal", 7),
    Sketcher.Constraint("Vertical", 8),
    Sketcher.Constraint("Horizontal", 9),
    Sketcher.Constraint("Vertical", 10),
    Sketcher.Constraint("Horizontal", 11),
    Sketcher.Constraint("Vertical", 12),
    Sketcher.Constraint("Horizontal", 13),
    Sketcher.Constraint("Vertical", 14),
    Sketcher.Constraint("Horizontal", 15),
    Sketcher.Constraint("Horizontal", 1, 2, 4, 2),
    Sketcher.Constraint("Horizontal", 3, 2, 6, 2),
    Sketcher.Constraint("Horizontal", 9, 2, 12, 2),
    Sketcher.Constraint("Horizontal", 11, 2, 14, 2),
    Sketcher.Constraint("Vertical", 7, 2, 8, 2),
    Sketcher.Constraint("Vertical", 6, 2, 9, 2),
    Sketcher.Constraint("Vertical", 3, 2, 12, 2),
    Sketcher.Constraint("Vertical", 2, 2, 13, 2),
    Sketcher.Constraint("Equal", 3, 5),
    Sketcher.Constraint("Equal", 15, 0),
    Sketcher.Constraint("Equal", 6, 8),
    Sketcher.Constraint("DistanceX", 1, 1, 1, 2, Q("1.5 mm")),
    Sketcher.Constraint("DistanceX", 1, 2, -1, 1, Q("15 mm")),
    Sketcher.Constraint("DistanceX", -1, 1, 4, 2, Q("2.3 mm")),
    Sketcher.Constraint("DistanceY", 8, 2, 4, 2, Q("74.7 mm")),
    Sketcher.Constraint("DistanceY", -1, 1, 0, 2, Q("5.301621 mm")),
])
pad7 = body.newObject("PartDesign::Pad", "Pad006")
pad7.Profile = sketch18
pad7.Length = 8

doc.recompute()
